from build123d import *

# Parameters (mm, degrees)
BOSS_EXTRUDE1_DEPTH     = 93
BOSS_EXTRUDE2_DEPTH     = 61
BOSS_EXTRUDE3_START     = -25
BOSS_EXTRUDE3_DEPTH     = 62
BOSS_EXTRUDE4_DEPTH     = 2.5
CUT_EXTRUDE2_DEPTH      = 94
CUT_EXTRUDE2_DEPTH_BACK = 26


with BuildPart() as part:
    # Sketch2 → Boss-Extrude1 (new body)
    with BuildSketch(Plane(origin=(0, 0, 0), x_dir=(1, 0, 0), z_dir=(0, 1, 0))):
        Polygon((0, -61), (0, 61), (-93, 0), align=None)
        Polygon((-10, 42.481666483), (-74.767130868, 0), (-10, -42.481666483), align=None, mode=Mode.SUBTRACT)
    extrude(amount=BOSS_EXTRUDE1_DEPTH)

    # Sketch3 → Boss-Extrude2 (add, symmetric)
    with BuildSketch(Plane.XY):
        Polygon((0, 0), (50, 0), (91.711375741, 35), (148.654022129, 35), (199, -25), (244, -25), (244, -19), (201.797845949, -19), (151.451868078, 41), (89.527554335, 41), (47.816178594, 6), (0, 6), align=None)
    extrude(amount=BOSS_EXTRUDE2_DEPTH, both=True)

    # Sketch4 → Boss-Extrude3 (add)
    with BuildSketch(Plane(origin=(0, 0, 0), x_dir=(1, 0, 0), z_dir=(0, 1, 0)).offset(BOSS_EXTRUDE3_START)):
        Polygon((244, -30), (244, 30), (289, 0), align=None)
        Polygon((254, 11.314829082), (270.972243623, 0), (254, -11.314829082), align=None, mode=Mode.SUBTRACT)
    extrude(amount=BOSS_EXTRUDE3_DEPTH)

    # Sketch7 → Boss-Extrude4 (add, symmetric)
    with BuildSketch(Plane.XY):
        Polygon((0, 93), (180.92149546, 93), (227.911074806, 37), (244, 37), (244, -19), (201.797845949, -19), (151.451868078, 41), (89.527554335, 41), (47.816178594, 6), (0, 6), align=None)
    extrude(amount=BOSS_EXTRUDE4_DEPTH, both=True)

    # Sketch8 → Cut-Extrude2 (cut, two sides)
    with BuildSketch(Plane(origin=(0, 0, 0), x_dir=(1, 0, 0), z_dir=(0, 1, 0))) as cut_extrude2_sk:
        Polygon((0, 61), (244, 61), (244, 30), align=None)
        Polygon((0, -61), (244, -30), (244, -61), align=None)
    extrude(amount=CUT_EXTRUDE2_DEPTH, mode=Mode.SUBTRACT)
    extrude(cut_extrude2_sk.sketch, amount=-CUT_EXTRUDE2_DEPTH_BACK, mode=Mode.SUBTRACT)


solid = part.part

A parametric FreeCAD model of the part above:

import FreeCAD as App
import Part
import Sketcher
from FreeCAD import Vector
Q = App.Units.Quantity


def add_polygon(sketch, points):
    """Adds a closed chain of lines whose ends are joined by coincident constraints."""
    first, n = sketch.GeometryCount, len(points)
    for a, b in zip(points, points[1:] + points[:1]):
        sketch.addGeometry(Part.LineSegment(App.Vector(*a, 0), App.Vector(*b, 0)), False)
    for i in range(n):
        sketch.addConstraint(Sketcher.Constraint("Coincident", first + i, 2, first + (i + 1) % n, 1))

doc = App.newDocument("Part")
body = doc.addObject("PartDesign::Body", "Body")

# Sketch on XZ plane
sketch1 = body.newObject("Sketcher::SketchObject", "Sketch")
sketch1.AttachmentSupport = (doc.getObject("XZ_Plane"), [""])
sketch1.MapMode = "FlatFace"
add_polygon(sketch1, [(0, 61), (0, -61), (-93, 0)])  # lines 0-2
add_polygon(sketch1, [(-74.767131, 0), (-10, -42.481666), (-10, 42.481666)])  # lines 3-5
sketch1.addConstraint([
    Sketcher.Constraint("Vertical", 0),
    Sketcher.Constraint("Vertical", 4),
    Sketcher.Constraint("Symmetric", 0, 2, 2, 2, -1, 1),
    Sketcher.Constraint("PointOnObject", 1, 2, -1),
    Sketcher.Constraint("PointOnObject", 5, 2, -1),
    Sketcher.Constraint("Parallel", 1, 3),
    Sketcher.Constraint("Parallel", 2, 5),
    Sketcher.Constraint("DistanceY", 0, 2, 0, 1, Q("122 mm")),
    Sketcher.Constraint("DistanceX", 1, 2, -1, 1, Q("93 mm")),
    Sketcher.Constraint("DistanceX", 3, 2, -1, 1, Q("10 mm")),
    Sketcher.Constraint("DistanceY", 4, 1, 4, 2, Q("84.963333 mm")),
])
pad1 = body.newObject("PartDesign::Pad", "Pad")
pad1.Profile = sketch1
pad1.Length = 93
pad1.Reversed = True

# Sketch on XY plane
sketch2 = body.newObject("Sketcher::SketchObject", "Sketch001")
sketch2.AttachmentSupport = (doc.getObject("XY_Plane"), [""])
sketch2.MapMode = "FlatFace"
add_polygon(sketch2, [(0, 0), (50, 0), (91.711376, 35), (148.654022, 35), (199, -25), (244, -25), (244, -19), (201.797846, -19), (151.451868, 41), (89.527554, 41), (47.816179, 6), (0, 6)])  # lines 0-11
sketch2.addConstraint([
    Sketcher.Constraint("Horizontal", 0),
    Sketcher.Constraint("Horizontal", 2),
    Sketcher.Constraint("Horizontal", 4),
    Sketcher.Constraint("Vertical", 5),
    Sketcher.Constraint("Horizontal", 6),
    Sketcher.Constraint("Horizontal", 8),
    Sketcher.Constraint("Horizontal", 10),
    Sketcher.Constraint("Vertical", 11),
    Sketcher.Constraint("Coincident", 11, 2, -1, 1),
    Sketcher.Constraint("Perpendicular", 1, 3),
    Sketcher.Constraint("Parallel", 3, 7),
    Sketcher.Constraint("Perpendicular", 7, 9),
    Sketcher.Constraint("Equal", 5, 11),
    Sketcher.Constraint("Equal", 3, 7),
    Sketcher.Constraint("DistanceX", 0, 1, 0, 2, Q("50 mm")),
    Sketcher.Constraint("DistanceX", 4, 1, 4, 2, Q("45 mm")),
    Sketcher.Constraint("DistanceY", 5, 1, 5, 2, Q("6 mm")),
    Sketcher.Constraint("Angle", 1, Q("40 deg")),
    Sketcher.Constraint("DistanceY", -1, 1, 1, 2, Q("35 mm")),
    Sketcher.Constraint("DistanceX", -1, 1, 3, 2, Q("199 mm")),
    Sketcher.Constraint("DistanceY", 3, 2, -1, 1, Q("25 mm")),
    Sketcher.Constraint("DistanceX", 10, 2, 10, 1, Q("47.816179 mm")),
    Sketcher.Constraint("DistanceX", 6, 2, 6, 1, Q("42.202154 mm")),
])
pad2 = body.newObject("PartDesign::Pad", "Pad001")
pad2.Profile = sketch2
pad2.Length = 122
pad2.Midplane = True

# Sketch on XZ plane
sketch3 = body.newObject("Sketcher::SketchObject", "Sketch002")
sketch3.AttachmentSupport = (doc.getObject("XZ_Plane"), [""])
sketch3.MapMode = "FlatFace"
sketch3.AttachmentOffset = App.Placement(Vector(0, 0, 25), App.Rotation())
add_polygon(sketch3, [(244, -30), (244, 30), (289, 0)])  # lines 0-2
add_polygon(sketch3, [(254, -11.314829), (270.972244, 0), (254, 11.314829)])  # lines 3-5
sketch3.addConstraint([
    Sketcher.Constraint("Vertical", 0),
    Sketcher.Constraint("Vertical", 5),
    Sketcher.Constraint("PointOnObject", 1, 2, -1),
    Sketcher.Constraint("PointOnObject", 3, 2, -1),
    Sketcher.Constraint("Parallel", 2, 3),
    Sketcher.Constraint("Parallel", 1, 4),
    Sketcher.Constraint("Equal", 1, 2),
    Sketcher.Constraint("DistanceY", 0, 1, 0, 2, Q("60 mm")),
    Sketcher.Constraint("DistanceX", -1, 1, 0, 2, Q("244 mm")),
    Sketcher.Constraint("DistanceX", -1, 1, 1, 2, Q("289 mm")),
    Sketcher.Constraint("DistanceX", -1, 1, 4, 2, Q("254 mm")),
    Sketcher.Constraint("Distance", 3, Q("20.398098 mm")),
])
pad3 = body.newObject("PartDesign::Pad", "Pad002")
pad3.Profile = sketch3
pad3.Length = 62
pad3.Reversed = True

# Sketch on XY plane
sketch4 = body.newObject("Sketcher::SketchObject", "Sketch003")
sketch4.AttachmentSupport = (doc.getObject("XY_Plane"), [""])
sketch4.MapMode = "FlatFace"
add_polygon(sketch4, [(180.921495, 93), (0, 93), (0, 6), (47.816179, 6), (89.527554, 41), (151.451868, 41), (201.797846, -19), (244, -19), (244, 37), (227.911075, 37)])  # lines 0-9
sketch4.addConstraint([
    Sketcher.Constraint("Horizontal", 0),
    Sketcher.Constraint("Vertical", 1),
    Sketcher.Constraint("Horizontal", 2),
    Sketcher.Constraint("Horizontal", 4),
    Sketcher.Constraint("Horizontal", 6),
    Sketcher.Constraint("Vertical", 7),
    Sketcher.Constraint("Horizontal", 8),
    Sketcher.Constraint("PointOnObject", 0, 2, -2),
    Sketcher.Constraint("Perpendicular", 3, 5),
    Sketcher.Constraint("Parallel", 5, 9),
    Sketcher.Constraint("DistanceY", 1, 2, 1, 1, Q("87 mm")),
    Sketcher.Constraint("DistanceY", 7, 1, 7, 2, Q("56 mm")),
    Sketcher.Constraint("Angle", 3, Q("40 deg")),
    Sketcher.Constraint("DistanceY", -1, 1, 0, 2, Q("93 mm")),
    Sketcher.Constraint("DistanceY", -1, 1, 3, 2, Q("41 mm")),
    Sketcher.Constraint("DistanceY", 5, 2, -1, 1, Q("19 mm")),
    Sketcher.Constraint("DistanceX", -1, 1, 6, 2, Q("244 mm")),
    Sketcher.Constraint("DistanceX", 2, 1, 2, 2, Q("47.816179 mm")),
    Sketcher.Constraint("DistanceX", 0, 2, 0, 1, Q("180.921495 mm")),
    Sketcher.Constraint("DistanceX", 4, 1, 4, 2, Q("61.924314 mm")),
])
pad4 = body.newObject("PartDesign::Pad", "Pad003")
pad4.Profile = sketch4
pad4.Length = 5
pad4.Midplane = True

# Sketch on XZ plane
sketch5 = body.newObject("Sketcher::SketchObject", "Sketch004")
sketch5.AttachmentSupport = (doc.getObject("XZ_Plane"), [""])
sketch5.MapMode = "FlatFace"
add_polygon(sketch5, [(244, -61), (0, -61), (244, -30)])  # lines 0-2
add_polygon(sketch5, [(244, 30), (0, 61), (244, 61)])  # lines 3-5
sketch5.addConstraint([
    Sketcher.Constraint("Horizontal", 0),
    Sketcher.Constraint("Vertical", 2),
    Sketcher.Constraint("Horizontal", 4),
    Sketcher.Constraint("Vertical", 5),
    Sketcher.Constraint("Symmetric", 0, 2, 3, 2, -1, 1),
    Sketcher.Constraint("Symmetric", 1, 2, 5, 2, -1),
    Sketcher.Constraint("PointOnObject", 0, 2, -2),
    Sketcher.Constraint("DistanceX", 0, 2, 0, 1, Q("244 mm")),
    Sketcher.Constraint("DistanceY", 2, 2, 2, 1, Q("31 mm")),
    Sketcher.Constraint("DistanceY", 0, 2, -1, 1, Q("61 mm")),
])
pocket1 = body.newObject("PartDesign::Pocket", "Pocket")
pocket1.Profile = sketch5
pocket1.Type = "ThroughAll"
pocket1.Midplane = True

doc.recompute()
